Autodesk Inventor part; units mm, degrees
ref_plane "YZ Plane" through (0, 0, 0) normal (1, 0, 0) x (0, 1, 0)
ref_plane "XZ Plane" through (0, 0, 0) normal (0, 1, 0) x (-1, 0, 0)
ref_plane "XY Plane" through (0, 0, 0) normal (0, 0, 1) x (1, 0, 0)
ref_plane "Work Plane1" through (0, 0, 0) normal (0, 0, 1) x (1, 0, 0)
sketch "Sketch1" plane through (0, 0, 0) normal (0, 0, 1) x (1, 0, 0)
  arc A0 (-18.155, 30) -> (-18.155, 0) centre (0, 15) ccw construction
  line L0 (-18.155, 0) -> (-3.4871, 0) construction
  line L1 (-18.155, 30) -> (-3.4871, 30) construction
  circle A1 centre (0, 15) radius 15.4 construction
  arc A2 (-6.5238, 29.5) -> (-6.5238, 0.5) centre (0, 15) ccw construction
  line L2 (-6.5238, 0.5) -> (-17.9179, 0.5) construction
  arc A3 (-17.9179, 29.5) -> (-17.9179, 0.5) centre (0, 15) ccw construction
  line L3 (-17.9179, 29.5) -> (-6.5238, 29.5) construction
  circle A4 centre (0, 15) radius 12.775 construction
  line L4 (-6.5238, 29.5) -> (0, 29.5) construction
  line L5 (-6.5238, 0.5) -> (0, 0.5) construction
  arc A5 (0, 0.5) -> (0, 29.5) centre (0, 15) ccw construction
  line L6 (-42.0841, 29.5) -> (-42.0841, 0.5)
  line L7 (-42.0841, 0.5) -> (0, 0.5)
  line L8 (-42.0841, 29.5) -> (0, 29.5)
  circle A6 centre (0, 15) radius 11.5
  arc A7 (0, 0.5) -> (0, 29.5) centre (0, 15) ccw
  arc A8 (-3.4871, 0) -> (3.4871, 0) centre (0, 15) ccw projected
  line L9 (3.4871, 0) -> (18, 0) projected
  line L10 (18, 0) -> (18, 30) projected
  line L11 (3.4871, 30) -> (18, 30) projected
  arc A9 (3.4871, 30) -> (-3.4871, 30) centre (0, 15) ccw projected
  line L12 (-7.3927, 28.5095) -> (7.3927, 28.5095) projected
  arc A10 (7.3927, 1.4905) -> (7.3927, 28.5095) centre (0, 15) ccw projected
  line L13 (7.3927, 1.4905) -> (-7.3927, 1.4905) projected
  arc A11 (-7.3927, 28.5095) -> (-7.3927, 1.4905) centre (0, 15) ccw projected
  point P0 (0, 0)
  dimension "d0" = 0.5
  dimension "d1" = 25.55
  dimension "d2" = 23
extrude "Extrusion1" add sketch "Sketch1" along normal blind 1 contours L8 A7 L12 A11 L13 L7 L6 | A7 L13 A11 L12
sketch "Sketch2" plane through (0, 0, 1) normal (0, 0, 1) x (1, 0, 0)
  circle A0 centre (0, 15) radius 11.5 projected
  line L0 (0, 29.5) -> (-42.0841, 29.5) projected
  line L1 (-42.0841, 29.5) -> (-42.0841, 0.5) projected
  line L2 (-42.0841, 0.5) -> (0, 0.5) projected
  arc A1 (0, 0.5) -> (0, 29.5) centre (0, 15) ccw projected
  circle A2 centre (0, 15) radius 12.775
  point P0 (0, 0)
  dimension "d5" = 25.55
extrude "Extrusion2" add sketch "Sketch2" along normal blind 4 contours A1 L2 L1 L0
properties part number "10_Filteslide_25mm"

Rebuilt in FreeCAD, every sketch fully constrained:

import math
import FreeCAD as App
import Part
import Sketcher
Q = App.Units.Quantity

doc = App.newDocument("Part")
body = doc.addObject("PartDesign::Body", "Body")

# Sketch on XY plane
sketch1 = body.newObject("Sketcher::SketchObject", "Sketch")
sketch1.AttachmentSupport = (doc.getObject("XY_Plane"), [""])
sketch1.MapMode = "FlatFace"
sketch1.addGeometry([
    Part.LineSegment(App.Vector(0, 30, 0), App.Vector(-42, 30, 0)),  # 0
    Part.LineSegment(App.Vector(-42, 30, 0), App.Vector(-42, 0, 0)),  # 1
    Part.LineSegment(App.Vector(-42, 0, 0), App.Vector(0, 0, 0)),  # 2
    Part.ArcOfCircle(Part.Circle(App.Vector(0, 15, 0), App.Vector(0, 0, 1), 14), math.radians(-90), math.radians(90)),  # 3
    Part.Circle(App.Vector(0, 15, 0), App.Vector(0, 0, 1), 12),  # 4
], False)
sketch1.addConstraint([
    Sketcher.Constraint("Coincident", 0, 2, 1, 1),
    Sketcher.Constraint("Coincident", 1, 2, 2, 1),
    Sketcher.Constraint("Tangent", 2, 2, 3, 1),
    Sketcher.Constraint("Tangent", 3, 2, 0, 1),
    Sketcher.Constraint("Horizontal", 0),
    Sketcher.Constraint("Vertical", 1),
    Sketcher.Constraint("Horizontal", 2),
    Sketcher.Constraint("Coincident", 4, 3, 3, 3),
    Sketcher.Constraint("PointOnObject", 3, 3, -2),
    Sketcher.Constraint("Diameter", 4, Q("23 mm")),
    Sketcher.Constraint("DistanceY", -1, 1, 1, 2, Q("0.5 mm")),
    Sketcher.Constraint("Radius", 3, Q("14.5 mm")),
    Sketcher.Constraint("DistanceX", 0, 2, 0, 1, Q("42.084 mm")),
])
pad1 = body.newObject("PartDesign::Pad", "Pad")
pad1.Profile = sketch1
pad1.Length = 1

# Sketch on XY plane
sketch2 = body.newObject("Sketcher::SketchObject", "Sketch001")
sketch2.AttachmentSupport = (doc.getObject("XY_Plane"), [""])
sketch2.MapMode = "FlatFace"
sketch2.AttachmentOffset = App.Placement(App.Vector(0, 0, 1), App.Rotation())
sketch2.addGeometry([
    Part.ArcOfCircle(Part.Circle(App.Vector(0, 15, 0), App.Vector(0, 0, 1), 14), math.radians(-90), math.radians(90)),  # 0
    Part.LineSegment(App.Vector(0, 30, 0), App.Vector(-42, 30, 0)),  # 1
    Part.LineSegment(App.Vector(-42, 30, 0), App.Vector(-42, 0, 0)),  # 2
    Part.LineSegment(App.Vector(-42, 0, 0), App.Vector(0, 0, 0)),  # 3
    Part.Circle(App.Vector(0, 15, 0), App.Vector(0, 0, 1), 13),  # 4
], False)
sketch2.addConstraint([
    Sketcher.Constraint("Tangent", 0, 2, 1, 1),
    Sketcher.Constraint("Coincident", 1, 2, 2, 1),
    Sketcher.Constraint("Coincident", 2, 2, 3, 1),
    Sketcher.Constraint("Tangent", 3, 2, 0, 1),
    Sketcher.Constraint("Horizontal", 1),
    Sketcher.Constraint("Vertical", 2),
    Sketcher.Constraint("Horizontal", 3),
    Sketcher.Constraint("Coincident", 4, 3, 0, 3),
    Sketcher.Constraint("PointOnObject", 0, 3, -2),
    Sketcher.Constraint("Diameter", 4, Q("25.55 mm")),
    Sketcher.Constraint("Radius", 0, Q("14.5 mm")),
    Sketcher.Constraint("DistanceY", -1, 1, 0, 3, Q("15 mm")),
    Sketcher.Constraint("DistanceX", 1, 2, 1, 1, Q("42.084 mm")),
])
pad2 = body.newObject("PartDesign::Pad", "Pad001")
pad2.Profile = sketch2
pad2.Length = 4

doc.recompute()
